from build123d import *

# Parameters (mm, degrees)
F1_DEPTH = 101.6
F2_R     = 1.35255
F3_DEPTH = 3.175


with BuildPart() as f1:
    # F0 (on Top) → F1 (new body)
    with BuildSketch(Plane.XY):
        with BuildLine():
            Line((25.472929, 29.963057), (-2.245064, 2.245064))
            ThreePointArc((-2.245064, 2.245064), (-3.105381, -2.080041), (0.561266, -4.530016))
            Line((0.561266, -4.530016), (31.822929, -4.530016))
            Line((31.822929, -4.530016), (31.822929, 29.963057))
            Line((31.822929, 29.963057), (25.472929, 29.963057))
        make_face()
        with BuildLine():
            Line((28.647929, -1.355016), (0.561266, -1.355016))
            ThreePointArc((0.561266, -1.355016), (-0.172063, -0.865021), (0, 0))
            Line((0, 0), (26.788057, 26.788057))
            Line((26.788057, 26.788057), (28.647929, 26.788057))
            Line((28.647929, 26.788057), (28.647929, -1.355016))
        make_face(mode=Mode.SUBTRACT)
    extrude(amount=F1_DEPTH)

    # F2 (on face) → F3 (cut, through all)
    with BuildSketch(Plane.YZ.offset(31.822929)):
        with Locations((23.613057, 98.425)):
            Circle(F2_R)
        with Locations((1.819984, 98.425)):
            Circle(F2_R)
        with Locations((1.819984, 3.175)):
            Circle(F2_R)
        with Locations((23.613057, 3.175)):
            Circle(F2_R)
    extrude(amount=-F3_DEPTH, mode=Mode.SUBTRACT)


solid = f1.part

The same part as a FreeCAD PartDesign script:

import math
import FreeCAD as App
import Part
import Sketcher
from FreeCAD import Vector
Q = App.Units.Quantity

doc = App.newDocument("Part")
body = doc.addObject("PartDesign::Body", "Body")

# Sketch on XY plane
sketch1 = body.newObject("Sketcher::SketchObject", "Sketch")
sketch1.AttachmentSupport = (doc.getObject("XY_Plane"), [""])
sketch1.MapMode = "FlatFace"
sketch1.addGeometry(Part.LineSegment(Vector(25.5, 30, 0), Vector(-2.2, 2.2, 0)), False)
sketch1.addGeometry(Part.ArcOfCircle(Part.Circle(Vector(0.6, -0.6, 0), Vector(0, 0, 1), 4), math.radians(135), math.radians(270)), False)
sketch1.addGeometry(Part.LineSegment(Vector(0.6, -4.5, 0), Vector(31.8, -4.5, 0)), False)
sketch1.addGeometry(Part.LineSegment(Vector(31.8, -4.5, 0), Vector(31.8, 30, 0)), False)
sketch1.addGeometry(Part.LineSegment(Vector(31.8, 30, 0), Vector(25.5, 30, 0)), False)
sketch1.addGeometry(Part.LineSegment(Vector(28.6, 26.8, 0), Vector(28.6, -1.4, 0)), False)
sketch1.addGeometry(Part.LineSegment(Vector(28.6, -1.4, 0), Vector(0.6, -1.4, 0)), False)
sketch1.addGeometry(Part.ArcOfCircle(Part.Circle(Vector(0.6, -0.6, 0), Vector(0, 0, 1), 0.8), math.radians(135), math.radians(270)), False)
sketch1.addGeometry(Part.LineSegment(Vector(0, 0, 0), Vector(26.8, 26.8, 0)), False)
sketch1.addGeometry(Part.LineSegment(Vector(26.8, 26.8, 0), Vector(28.6, 26.8, 0)), False)
sketch1.addConstraint(Sketcher.Constraint("Tangent", 0, 2, 1, 1))
sketch1.addConstraint(Sketcher.Constraint("Tangent", 1, 2, 2, 1))
sketch1.addConstraint(Sketcher.Constraint("Coincident", 2, 2, 3, 1))
sketch1.addConstraint(Sketcher.Constraint("Coincident", 3, 2, 4, 1))
sketch1.addConstraint(Sketcher.Constraint("Coincident", 4, 2, 0, 1))
sketch1.addConstraint(Sketcher.Constraint("Coincident", 5, 2, 6, 1))
sketch1.addConstraint(Sketcher.Constraint("Tangent", 6, 2, 7, 2))
sketch1.addConstraint(Sketcher.Constraint("Tangent", 7, 1, 8, 1))
sketch1.addConstraint(Sketcher.Constraint("Coincident", 8, 2, 9, 1))
sketch1.addConstraint(Sketcher.Constraint("Coincident", 9, 2, 5, 1))
sketch1.addConstraint(Sketcher.Constraint("Horizontal", 2))
sketch1.addConstraint(Sketcher.Constraint("Vertical", 3))
sketch1.addConstraint(Sketcher.Constraint("Horizontal", 4))
sketch1.addConstraint(Sketcher.Constraint("Vertical", 5))
sketch1.addConstraint(Sketcher.Constraint("Horizontal", 6))
sketch1.addConstraint(Sketcher.Constraint("Horizontal", 9))
sketch1.addConstraint(Sketcher.Constraint("Coincident", 7, 1, -1, 1))
sketch1.addConstraint(Sketcher.Constraint("Coincident", 7, 3, 1, 3))
sketch1.addConstraint(Sketcher.Constraint("Parallel", 0, 8))
sketch1.addConstraint(Sketcher.Constraint("Angle", 0, Q("-135 deg")))
sketch1.addConstraint(Sketcher.Constraint("Radius", 1, Q("0.15625 in")))
sketch1.addConstraint(Sketcher.Constraint("Radius", 7, Q("0.03125 in")))
sketch1.addConstraint(Sketcher.Constraint("DistanceX", 4, 2, 4, 1, Q("0.25 in")))
sketch1.addConstraint(Sketcher.Constraint("DistanceX", 5, 2, 2, 2, Q("0.125 in")))
sketch1.addConstraint(Sketcher.Constraint("DistanceY", 8, 2, 4, 2, Q("0.125 in")))
sketch1.addConstraint(Sketcher.Constraint("Distance", 0, 39.199162))
pad1 = body.newObject("PartDesign::Pad", "Pad")
pad1.Profile = sketch1
pad1.Length = Q("4 in")

# Sketch on YZ plane
sketch2 = body.newObject("Sketcher::SketchObject", "Sketch001")
sketch2.AttachmentSupport = (doc.getObject("YZ_Plane"), [""])
sketch2.MapMode = "FlatFace"
sketch2.AttachmentOffset = App.Placement(Vector(0, 0, 31.822929), App.Rotation())
sketch2.addGeometry(Part.Circle(Vector(23.6, 98.4, 0), Vector(0, 0, 1), 1.4), False)
sketch2.addGeometry(Part.Circle(Vector(1.8, 98.4, 0), Vector(0, 0, 1), 1.4), False)
sketch2.addGeometry(Part.Circle(Vector(1.8, 3.2, 0), Vector(0, 0, 1), 1.4), False)
sketch2.addGeometry(Part.Circle(Vector(23.6, 3.2, 0), Vector(0, 0, 1), 1.4), False)
sketch2.addConstraint(Sketcher.Constraint("Equal", 0, 1))
sketch2.addConstraint(Sketcher.Constraint("Equal", 1, 2))
sketch2.addConstraint(Sketcher.Constraint("Equal", 2, 3))
sketch2.addConstraint(Sketcher.Constraint("Horizontal", 0, 3, 1, 3))
sketch2.addConstraint(Sketcher.Constraint("Horizontal", 2, 3, 3, 3))
sketch2.addConstraint(Sketcher.Constraint("Vertical", 1, 3, 2, 3))
sketch2.addConstraint(Sketcher.Constraint("Vertical", 0, 3, 3, 3))
sketch2.addConstraint(Sketcher.Constraint("Diameter", 0, Q("0.1065 in")))
sketch2.addConstraint(Sketcher.Constraint("DistanceY", 2, 3, 1, 3, Q("3.75 in")))
sketch2.addConstraint(Sketcher.Constraint("DistanceY", -1, 1, 0, 3, Q("3.875 in")))
sketch2.addConstraint(Sketcher.Constraint("DistanceX", -1, 1, 0, 3, 23.613057))
sketch2.addConstraint(Sketcher.Constraint("DistanceX", -1, 1, 1, 3, 1.819984))
pocket1 = body.newObject("PartDesign::Pocket", "Pocket")
pocket1.Profile = sketch2
pocket1.Length = Q("0.125 in")

doc.recompute()
